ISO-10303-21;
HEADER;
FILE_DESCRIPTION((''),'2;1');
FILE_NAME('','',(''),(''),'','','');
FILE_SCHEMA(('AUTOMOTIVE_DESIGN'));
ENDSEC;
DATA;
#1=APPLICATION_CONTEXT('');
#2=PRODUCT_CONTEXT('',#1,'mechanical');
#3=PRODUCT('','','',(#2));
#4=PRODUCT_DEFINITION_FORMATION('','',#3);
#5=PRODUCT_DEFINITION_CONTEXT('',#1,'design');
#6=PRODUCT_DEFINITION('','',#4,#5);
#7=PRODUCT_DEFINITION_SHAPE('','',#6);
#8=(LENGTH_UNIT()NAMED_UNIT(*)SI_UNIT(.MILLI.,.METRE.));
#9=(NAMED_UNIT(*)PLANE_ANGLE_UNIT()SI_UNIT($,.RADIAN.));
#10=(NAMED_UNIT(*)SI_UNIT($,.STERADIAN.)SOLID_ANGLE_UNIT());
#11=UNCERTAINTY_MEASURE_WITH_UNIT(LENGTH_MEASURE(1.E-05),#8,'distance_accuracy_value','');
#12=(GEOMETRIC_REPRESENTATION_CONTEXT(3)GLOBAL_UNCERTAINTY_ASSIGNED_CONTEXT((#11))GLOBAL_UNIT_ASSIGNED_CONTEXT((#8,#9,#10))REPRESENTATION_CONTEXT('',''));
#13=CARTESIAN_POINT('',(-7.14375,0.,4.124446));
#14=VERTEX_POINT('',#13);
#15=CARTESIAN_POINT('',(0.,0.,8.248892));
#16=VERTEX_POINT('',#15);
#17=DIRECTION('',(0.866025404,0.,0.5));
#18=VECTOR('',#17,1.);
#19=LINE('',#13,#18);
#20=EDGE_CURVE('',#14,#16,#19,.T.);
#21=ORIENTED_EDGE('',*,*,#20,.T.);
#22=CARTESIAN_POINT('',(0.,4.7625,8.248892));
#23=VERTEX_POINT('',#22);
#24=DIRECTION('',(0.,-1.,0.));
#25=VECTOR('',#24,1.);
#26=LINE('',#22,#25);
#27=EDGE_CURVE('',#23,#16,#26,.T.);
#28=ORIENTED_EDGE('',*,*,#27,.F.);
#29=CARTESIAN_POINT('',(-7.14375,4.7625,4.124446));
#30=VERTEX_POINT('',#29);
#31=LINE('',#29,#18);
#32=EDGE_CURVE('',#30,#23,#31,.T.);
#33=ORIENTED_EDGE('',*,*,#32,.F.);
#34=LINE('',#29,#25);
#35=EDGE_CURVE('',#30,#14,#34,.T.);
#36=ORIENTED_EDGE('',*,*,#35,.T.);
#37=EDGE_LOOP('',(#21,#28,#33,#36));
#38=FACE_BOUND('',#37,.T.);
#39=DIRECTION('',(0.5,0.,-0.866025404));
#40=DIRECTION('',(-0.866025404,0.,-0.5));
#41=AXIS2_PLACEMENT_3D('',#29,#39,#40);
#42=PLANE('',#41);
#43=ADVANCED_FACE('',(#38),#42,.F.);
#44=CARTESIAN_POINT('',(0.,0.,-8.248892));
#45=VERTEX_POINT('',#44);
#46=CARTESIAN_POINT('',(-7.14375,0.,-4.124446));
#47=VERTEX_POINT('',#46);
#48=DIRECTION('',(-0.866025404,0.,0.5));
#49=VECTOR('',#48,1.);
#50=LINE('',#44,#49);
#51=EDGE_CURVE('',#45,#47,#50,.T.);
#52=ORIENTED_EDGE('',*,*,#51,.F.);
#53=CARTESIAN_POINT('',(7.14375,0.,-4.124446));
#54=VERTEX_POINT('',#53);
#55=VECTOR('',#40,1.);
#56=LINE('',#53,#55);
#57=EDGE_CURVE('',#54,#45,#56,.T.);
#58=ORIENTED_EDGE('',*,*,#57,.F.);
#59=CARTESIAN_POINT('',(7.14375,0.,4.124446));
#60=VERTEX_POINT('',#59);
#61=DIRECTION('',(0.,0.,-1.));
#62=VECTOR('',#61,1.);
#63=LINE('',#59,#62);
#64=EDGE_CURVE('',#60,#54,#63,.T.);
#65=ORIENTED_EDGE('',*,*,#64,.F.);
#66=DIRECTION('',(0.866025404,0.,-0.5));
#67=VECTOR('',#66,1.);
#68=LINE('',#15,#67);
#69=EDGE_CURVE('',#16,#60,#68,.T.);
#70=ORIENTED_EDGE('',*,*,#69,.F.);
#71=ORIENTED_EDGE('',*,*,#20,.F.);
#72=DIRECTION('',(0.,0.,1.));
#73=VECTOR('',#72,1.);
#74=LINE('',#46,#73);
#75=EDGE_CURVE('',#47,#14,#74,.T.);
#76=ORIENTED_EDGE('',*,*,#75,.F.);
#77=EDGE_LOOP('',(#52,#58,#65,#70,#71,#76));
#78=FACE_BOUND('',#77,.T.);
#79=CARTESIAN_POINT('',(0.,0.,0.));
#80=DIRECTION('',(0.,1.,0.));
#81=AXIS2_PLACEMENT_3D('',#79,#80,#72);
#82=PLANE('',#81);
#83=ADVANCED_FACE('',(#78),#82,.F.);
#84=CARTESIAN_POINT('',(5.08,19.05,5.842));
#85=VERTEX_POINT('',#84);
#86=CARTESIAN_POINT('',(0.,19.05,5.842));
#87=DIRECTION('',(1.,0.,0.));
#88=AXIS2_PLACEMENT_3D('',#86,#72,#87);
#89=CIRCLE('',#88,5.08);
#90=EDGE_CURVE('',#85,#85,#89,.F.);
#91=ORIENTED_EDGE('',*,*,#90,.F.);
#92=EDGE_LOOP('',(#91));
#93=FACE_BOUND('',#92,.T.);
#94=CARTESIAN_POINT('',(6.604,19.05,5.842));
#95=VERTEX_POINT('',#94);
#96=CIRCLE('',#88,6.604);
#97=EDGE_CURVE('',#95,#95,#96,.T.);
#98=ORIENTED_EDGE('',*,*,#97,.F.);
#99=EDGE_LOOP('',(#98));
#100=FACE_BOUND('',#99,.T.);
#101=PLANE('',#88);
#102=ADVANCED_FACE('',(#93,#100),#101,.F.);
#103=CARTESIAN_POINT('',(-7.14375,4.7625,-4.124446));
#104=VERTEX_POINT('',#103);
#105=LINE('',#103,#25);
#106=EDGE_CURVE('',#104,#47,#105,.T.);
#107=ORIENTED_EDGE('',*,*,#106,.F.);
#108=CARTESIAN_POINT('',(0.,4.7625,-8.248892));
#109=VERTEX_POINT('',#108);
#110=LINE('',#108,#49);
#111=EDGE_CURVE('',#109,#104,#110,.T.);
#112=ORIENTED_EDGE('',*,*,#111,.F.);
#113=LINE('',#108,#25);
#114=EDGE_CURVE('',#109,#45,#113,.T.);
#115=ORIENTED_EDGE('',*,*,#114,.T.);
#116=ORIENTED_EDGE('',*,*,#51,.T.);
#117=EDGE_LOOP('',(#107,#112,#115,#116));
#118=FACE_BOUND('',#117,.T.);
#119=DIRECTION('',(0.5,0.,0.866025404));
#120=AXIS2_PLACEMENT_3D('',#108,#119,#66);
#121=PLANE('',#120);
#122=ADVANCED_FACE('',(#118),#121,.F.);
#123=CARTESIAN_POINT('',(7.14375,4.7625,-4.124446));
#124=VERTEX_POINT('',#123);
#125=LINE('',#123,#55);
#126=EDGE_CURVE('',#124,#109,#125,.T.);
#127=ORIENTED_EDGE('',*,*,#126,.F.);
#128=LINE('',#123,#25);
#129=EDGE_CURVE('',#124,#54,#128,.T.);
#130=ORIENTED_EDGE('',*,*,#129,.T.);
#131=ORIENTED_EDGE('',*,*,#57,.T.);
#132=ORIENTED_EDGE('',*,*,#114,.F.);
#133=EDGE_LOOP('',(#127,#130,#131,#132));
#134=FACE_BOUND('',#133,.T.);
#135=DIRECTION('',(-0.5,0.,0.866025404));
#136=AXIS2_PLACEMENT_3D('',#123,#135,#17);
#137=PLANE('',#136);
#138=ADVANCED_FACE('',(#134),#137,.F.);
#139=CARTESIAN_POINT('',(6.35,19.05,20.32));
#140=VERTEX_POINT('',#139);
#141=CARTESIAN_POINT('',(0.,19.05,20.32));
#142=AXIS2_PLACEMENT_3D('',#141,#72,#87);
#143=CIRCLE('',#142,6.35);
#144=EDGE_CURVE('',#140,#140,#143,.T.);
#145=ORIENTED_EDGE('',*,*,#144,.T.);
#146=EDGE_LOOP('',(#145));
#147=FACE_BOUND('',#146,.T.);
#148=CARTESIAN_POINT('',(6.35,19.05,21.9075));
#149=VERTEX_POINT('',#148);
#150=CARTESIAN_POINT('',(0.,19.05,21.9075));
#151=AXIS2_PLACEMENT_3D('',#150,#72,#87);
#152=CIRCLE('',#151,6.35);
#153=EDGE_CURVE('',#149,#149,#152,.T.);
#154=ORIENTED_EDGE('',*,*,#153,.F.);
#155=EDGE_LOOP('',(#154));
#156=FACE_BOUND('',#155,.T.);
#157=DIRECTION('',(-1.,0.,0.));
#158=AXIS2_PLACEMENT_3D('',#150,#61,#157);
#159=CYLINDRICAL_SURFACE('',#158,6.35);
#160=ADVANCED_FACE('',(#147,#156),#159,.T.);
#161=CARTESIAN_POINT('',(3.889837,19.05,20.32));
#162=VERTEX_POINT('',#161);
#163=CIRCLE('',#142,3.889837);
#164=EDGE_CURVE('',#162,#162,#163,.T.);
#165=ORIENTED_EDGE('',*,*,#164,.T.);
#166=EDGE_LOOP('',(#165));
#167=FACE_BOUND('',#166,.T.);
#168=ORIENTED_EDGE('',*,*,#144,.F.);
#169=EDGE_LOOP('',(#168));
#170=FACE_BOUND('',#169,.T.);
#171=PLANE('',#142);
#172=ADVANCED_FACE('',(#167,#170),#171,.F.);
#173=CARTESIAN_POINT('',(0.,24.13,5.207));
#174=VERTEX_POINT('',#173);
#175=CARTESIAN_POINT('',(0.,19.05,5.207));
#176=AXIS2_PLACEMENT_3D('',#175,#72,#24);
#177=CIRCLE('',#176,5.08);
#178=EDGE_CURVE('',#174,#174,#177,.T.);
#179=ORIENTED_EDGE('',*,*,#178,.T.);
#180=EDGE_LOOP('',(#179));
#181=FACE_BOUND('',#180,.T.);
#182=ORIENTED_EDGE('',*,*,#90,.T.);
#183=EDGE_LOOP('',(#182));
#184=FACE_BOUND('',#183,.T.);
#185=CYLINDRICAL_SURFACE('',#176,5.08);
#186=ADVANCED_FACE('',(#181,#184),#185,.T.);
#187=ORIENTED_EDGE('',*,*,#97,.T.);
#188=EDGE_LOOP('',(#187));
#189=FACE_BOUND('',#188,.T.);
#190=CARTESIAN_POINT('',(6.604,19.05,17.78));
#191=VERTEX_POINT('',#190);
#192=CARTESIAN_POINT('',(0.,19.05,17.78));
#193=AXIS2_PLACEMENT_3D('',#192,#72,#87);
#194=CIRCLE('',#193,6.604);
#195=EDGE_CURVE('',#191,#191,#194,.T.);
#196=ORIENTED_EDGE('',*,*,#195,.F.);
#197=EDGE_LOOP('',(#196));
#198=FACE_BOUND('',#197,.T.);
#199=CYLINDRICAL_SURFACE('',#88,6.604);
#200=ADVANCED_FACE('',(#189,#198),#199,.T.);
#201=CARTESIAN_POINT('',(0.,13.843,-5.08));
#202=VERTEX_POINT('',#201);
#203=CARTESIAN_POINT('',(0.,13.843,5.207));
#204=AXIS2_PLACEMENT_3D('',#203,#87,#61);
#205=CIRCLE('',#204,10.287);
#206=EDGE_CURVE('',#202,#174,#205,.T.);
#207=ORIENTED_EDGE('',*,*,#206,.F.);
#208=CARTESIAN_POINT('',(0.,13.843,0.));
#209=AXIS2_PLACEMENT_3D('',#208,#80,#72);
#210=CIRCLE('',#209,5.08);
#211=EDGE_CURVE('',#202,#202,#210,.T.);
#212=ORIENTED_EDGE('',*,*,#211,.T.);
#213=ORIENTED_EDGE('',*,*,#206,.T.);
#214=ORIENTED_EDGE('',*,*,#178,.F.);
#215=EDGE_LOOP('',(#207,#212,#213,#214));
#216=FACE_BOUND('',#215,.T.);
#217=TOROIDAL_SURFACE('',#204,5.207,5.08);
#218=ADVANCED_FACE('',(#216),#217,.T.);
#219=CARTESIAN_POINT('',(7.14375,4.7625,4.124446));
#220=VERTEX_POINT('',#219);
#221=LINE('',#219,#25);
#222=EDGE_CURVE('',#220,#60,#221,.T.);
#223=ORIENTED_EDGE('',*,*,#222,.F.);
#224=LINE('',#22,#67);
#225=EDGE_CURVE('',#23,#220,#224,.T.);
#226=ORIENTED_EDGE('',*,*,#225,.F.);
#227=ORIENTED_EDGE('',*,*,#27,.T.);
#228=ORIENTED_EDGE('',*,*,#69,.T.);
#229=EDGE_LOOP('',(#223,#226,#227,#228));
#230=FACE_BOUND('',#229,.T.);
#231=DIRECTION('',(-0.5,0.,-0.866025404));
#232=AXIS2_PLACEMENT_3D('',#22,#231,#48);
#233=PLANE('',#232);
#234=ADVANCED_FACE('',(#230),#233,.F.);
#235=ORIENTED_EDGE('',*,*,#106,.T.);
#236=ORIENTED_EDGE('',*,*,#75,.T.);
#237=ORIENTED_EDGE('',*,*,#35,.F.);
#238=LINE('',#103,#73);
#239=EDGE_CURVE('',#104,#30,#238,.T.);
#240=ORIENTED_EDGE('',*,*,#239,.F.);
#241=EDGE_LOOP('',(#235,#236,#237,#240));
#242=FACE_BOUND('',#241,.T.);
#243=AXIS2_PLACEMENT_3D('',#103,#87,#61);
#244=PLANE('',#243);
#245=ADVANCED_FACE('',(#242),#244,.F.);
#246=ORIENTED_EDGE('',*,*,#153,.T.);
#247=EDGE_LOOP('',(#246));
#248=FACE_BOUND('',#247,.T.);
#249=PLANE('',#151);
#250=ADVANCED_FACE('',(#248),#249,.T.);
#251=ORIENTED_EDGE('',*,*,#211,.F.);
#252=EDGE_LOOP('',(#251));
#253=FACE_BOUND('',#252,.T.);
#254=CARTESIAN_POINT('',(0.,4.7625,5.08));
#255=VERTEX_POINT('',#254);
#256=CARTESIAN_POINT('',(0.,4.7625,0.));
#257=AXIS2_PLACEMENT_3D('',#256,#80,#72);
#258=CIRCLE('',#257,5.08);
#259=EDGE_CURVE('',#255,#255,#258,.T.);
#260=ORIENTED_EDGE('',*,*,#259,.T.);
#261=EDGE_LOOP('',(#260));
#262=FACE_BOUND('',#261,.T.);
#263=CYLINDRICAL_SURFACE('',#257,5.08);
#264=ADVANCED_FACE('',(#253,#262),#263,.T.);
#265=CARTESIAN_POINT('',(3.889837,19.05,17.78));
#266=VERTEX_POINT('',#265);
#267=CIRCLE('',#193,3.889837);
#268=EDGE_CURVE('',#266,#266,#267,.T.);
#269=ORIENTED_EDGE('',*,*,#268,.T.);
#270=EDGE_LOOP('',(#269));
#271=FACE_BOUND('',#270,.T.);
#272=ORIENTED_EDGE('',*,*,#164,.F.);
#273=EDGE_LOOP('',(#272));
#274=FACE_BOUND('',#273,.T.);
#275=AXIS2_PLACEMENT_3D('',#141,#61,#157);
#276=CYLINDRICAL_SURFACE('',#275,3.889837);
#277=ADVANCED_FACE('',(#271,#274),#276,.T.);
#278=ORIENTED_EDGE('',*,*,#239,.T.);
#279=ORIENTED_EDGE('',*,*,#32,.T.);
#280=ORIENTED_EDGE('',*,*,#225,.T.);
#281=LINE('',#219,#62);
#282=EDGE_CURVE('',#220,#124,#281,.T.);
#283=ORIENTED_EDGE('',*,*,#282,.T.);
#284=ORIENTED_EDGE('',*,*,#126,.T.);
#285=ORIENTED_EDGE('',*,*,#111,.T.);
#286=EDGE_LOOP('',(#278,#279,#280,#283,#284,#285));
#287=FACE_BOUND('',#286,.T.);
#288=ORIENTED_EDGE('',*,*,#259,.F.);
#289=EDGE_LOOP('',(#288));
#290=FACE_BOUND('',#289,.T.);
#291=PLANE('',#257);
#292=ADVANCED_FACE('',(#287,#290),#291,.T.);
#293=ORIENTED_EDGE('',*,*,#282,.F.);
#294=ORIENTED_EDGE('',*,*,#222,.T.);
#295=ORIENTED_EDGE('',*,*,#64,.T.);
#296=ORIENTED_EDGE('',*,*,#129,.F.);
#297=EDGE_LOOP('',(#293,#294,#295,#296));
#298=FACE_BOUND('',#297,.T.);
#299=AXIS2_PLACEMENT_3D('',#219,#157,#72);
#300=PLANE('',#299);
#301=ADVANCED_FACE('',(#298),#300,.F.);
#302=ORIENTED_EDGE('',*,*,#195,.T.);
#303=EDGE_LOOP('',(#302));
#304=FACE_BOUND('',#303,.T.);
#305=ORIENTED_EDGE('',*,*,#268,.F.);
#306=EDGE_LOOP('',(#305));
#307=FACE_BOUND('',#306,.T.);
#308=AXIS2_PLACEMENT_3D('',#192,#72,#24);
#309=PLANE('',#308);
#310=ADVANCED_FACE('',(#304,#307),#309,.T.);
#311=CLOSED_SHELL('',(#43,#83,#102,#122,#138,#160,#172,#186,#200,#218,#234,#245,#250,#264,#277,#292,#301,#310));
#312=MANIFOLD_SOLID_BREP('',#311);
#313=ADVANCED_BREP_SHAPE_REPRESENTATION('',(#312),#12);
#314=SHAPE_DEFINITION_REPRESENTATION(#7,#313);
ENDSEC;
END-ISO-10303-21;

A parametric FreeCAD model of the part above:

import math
import FreeCAD as App
import Part
import Sketcher

V = App.Vector
Q = App.Units.Quantity


def add_polygon(sketch, points):
    """Adds a closed chain of lines whose ends are joined by coincident constraints."""
    first, n = sketch.GeometryCount, len(points)
    for a, b in zip(points, points[1:] + points[:1]):
        sketch.addGeometry(Part.LineSegment(App.Vector(*a, 0), App.Vector(*b, 0)), False)
    for i in range(n):
        sketch.addConstraint(Sketcher.Constraint("Coincident", first + i, 2, first + (i + 1) % n, 1))

doc = App.newDocument("Part")
body = doc.addObject("PartDesign::Body", "Body")

# Sketch on XZ plane
sketch1 = body.newObject("Sketcher::SketchObject", "Sketch")
sketch1.AttachmentSupport = (doc.getObject("XZ_Plane"), [""])
sketch1.MapMode = "FlatFace"
add_polygon(sketch1, [(0, -8.248892), (-7.14375, -4.124446), (-7.14375, 4.124446), (0, 8.248892), (7.14375, 4.124446), (7.14375, -4.124446)])  # lines 0-5
sketch1.addConstraint([
    Sketcher.Constraint("Vertical", 1),
    Sketcher.Constraint("Vertical", 4),
    Sketcher.Constraint("Symmetric", 0, 2, 3, 2, -1, 1),
    Sketcher.Constraint("Symmetric", 2, 2, 5, 2, -1, 1),
    Sketcher.Constraint("PointOnObject", 2, 2, -2),
    Sketcher.Constraint("Parallel", 2, 5),
    Sketcher.Constraint("Horizontal", 1, 2, 3, 2),
    Sketcher.Constraint("Angle", 0, Q("150 deg")),
    Sketcher.Constraint("DistanceX", 0, 2, -1, 1, Q("0.28125 in")),
    Sketcher.Constraint("DistanceY", 1, 1, 1, 2, 8.248892),
])
pad1 = body.newObject("PartDesign::Pad", "Pad")
pad1.Profile = sketch1
pad1.Length = Q("0.1875 in")
pad1.Reversed = True

# Sketch on XZ plane
sketch2 = body.newObject("Sketcher::SketchObject", "Sketch001")
sketch2.AttachmentSupport = (doc.getObject("XZ_Plane"), [""])
sketch2.MapMode = "FlatFace"
sketch2.AttachmentOffset = App.Placement(V(0, 0, -0.1875 * 25.4), App.Rotation())
sketch2.addGeometry(Part.Circle(V(0, 0, 0), V(0, 0, 1), 5.08), False)
sketch2.addConstraint([
    Sketcher.Constraint("Coincident", 0, 3, -1, 1),
    Sketcher.Constraint("Diameter", 0, Q("0.4 in")),
])

# Sketch on YZ plane
sketch3 = body.newObject("Sketcher::SketchObject", "Sketch002")
sketch3.AttachmentSupport = (doc.getObject("YZ_Plane"), [""])
sketch3.MapMode = "FlatFace"
sketch3.addGeometry([
    Part.LineSegment(V(4.7625, 0, 0), V(13.843, 0, 0)),
    Part.ArcOfCircle(Part.Circle(V(13.843, 5.207, 0), V(0, 0, 1), 5.207), math.radians(-90), math.radians(0)),
    Part.LineSegment(V(19.05, 5.207, 0), V(19.05, 17.78, 0)),
], False)
sketch3.addConstraint([
    Sketcher.Constraint("Tangent", 0, 2, 1, 1),
    Sketcher.Constraint("Tangent", 1, 2, 2, 1),
    Sketcher.Constraint("Horizontal", 0),
    Sketcher.Constraint("Vertical", 2),
    Sketcher.Constraint("PointOnObject", 0, 1, -1),
    Sketcher.Constraint("Radius", 1, Q("0.205 in")),
    Sketcher.Constraint("DistanceY", -1, 1, 2, 2, Q("0.7 in")),
    Sketcher.Constraint("DistanceX", -1, 1, 1, 2, Q("0.75 in")),
    Sketcher.Constraint("DistanceX", 0, 1, 0, 2, Q("0.3575 in")),
])
doc.recompute()

additivepipe = body.newObject("PartDesign::AdditivePipe", "AdditivePipe")
additivepipe.Profile = sketch2
additivepipe.Spine = (sketch3, ["Edge1", "Edge2", "Edge3"])

# Sketch on XY plane
sketch4 = body.newObject("Sketcher::SketchObject", "Sketch003")
sketch4.AttachmentSupport = (doc.getObject("XY_Plane"), [""])
sketch4.MapMode = "FlatFace"
sketch4.AttachmentOffset = App.Placement(V(0, 0, 0.7 * 25.4), App.Rotation())
sketch4.addGeometry(Part.Circle(V(0, 19.05, 0), V(0, 0, 1), 6.604), False)
sketch4.addConstraint([
    Sketcher.Constraint("PointOnObject", 0, 3, -2),
    Sketcher.Constraint("Diameter", 0, Q("0.52 in")),
    Sketcher.Constraint("DistanceY", -1, 1, 0, 3, Q("0.75 in")),
])
pad2 = body.newObject("PartDesign::Pad", "Pad001")
pad2.Profile = sketch4
pad2.Length = Q("0.47 in")
pad2.Reversed = True

# Sketch on XY plane
sketch5 = body.newObject("Sketcher::SketchObject", "Sketch004")
sketch5.AttachmentSupport = (doc.getObject("XY_Plane"), [""])
sketch5.MapMode = "FlatFace"
sketch5.AttachmentOffset = App.Placement(V(0, 0, 0.7 * 25.4), App.Rotation())
sketch5.addGeometry(Part.Circle(V(0, 19.05, 0), V(0, 0, 1), 3.889837), False)
sketch5.addConstraint([
    Sketcher.Constraint("PointOnObject", 0, 3, -2),
    Sketcher.Constraint("DistanceY", -1, 1, 0, 3, Q("0.75 in")),
    Sketcher.Constraint("Diameter", 0, 7.779674),
])
pad3 = body.newObject("PartDesign::Pad", "Pad002")
pad3.Profile = sketch5
pad3.Length = Q("0.1 in")

# Sketch on XY plane
sketch6 = body.newObject("Sketcher::SketchObject", "Sketch005")
sketch6.AttachmentSupport = (doc.getObject("XY_Plane"), [""])
sketch6.MapMode = "FlatFace"
sketch6.AttachmentOffset = App.Placement(V(0, 0, 0.8 * 25.4), App.Rotation())
sketch6.addGeometry(Part.Circle(V(0, 19.05, 0), V(0, 0, 1), 6.35), False)
sketch6.addConstraint([
    Sketcher.Constraint("PointOnObject", 0, 3, -2),
    Sketcher.Constraint("Diameter", 0, Q("0.5 in")),
    Sketcher.Constraint("DistanceY", -1, 1, 0, 3, Q("0.75 in")),
])
pad4 = body.newObject("PartDesign::Pad", "Pad003")
pad4.Profile = sketch6
pad4.Length = Q("0.0625 in")

doc.recompute()
